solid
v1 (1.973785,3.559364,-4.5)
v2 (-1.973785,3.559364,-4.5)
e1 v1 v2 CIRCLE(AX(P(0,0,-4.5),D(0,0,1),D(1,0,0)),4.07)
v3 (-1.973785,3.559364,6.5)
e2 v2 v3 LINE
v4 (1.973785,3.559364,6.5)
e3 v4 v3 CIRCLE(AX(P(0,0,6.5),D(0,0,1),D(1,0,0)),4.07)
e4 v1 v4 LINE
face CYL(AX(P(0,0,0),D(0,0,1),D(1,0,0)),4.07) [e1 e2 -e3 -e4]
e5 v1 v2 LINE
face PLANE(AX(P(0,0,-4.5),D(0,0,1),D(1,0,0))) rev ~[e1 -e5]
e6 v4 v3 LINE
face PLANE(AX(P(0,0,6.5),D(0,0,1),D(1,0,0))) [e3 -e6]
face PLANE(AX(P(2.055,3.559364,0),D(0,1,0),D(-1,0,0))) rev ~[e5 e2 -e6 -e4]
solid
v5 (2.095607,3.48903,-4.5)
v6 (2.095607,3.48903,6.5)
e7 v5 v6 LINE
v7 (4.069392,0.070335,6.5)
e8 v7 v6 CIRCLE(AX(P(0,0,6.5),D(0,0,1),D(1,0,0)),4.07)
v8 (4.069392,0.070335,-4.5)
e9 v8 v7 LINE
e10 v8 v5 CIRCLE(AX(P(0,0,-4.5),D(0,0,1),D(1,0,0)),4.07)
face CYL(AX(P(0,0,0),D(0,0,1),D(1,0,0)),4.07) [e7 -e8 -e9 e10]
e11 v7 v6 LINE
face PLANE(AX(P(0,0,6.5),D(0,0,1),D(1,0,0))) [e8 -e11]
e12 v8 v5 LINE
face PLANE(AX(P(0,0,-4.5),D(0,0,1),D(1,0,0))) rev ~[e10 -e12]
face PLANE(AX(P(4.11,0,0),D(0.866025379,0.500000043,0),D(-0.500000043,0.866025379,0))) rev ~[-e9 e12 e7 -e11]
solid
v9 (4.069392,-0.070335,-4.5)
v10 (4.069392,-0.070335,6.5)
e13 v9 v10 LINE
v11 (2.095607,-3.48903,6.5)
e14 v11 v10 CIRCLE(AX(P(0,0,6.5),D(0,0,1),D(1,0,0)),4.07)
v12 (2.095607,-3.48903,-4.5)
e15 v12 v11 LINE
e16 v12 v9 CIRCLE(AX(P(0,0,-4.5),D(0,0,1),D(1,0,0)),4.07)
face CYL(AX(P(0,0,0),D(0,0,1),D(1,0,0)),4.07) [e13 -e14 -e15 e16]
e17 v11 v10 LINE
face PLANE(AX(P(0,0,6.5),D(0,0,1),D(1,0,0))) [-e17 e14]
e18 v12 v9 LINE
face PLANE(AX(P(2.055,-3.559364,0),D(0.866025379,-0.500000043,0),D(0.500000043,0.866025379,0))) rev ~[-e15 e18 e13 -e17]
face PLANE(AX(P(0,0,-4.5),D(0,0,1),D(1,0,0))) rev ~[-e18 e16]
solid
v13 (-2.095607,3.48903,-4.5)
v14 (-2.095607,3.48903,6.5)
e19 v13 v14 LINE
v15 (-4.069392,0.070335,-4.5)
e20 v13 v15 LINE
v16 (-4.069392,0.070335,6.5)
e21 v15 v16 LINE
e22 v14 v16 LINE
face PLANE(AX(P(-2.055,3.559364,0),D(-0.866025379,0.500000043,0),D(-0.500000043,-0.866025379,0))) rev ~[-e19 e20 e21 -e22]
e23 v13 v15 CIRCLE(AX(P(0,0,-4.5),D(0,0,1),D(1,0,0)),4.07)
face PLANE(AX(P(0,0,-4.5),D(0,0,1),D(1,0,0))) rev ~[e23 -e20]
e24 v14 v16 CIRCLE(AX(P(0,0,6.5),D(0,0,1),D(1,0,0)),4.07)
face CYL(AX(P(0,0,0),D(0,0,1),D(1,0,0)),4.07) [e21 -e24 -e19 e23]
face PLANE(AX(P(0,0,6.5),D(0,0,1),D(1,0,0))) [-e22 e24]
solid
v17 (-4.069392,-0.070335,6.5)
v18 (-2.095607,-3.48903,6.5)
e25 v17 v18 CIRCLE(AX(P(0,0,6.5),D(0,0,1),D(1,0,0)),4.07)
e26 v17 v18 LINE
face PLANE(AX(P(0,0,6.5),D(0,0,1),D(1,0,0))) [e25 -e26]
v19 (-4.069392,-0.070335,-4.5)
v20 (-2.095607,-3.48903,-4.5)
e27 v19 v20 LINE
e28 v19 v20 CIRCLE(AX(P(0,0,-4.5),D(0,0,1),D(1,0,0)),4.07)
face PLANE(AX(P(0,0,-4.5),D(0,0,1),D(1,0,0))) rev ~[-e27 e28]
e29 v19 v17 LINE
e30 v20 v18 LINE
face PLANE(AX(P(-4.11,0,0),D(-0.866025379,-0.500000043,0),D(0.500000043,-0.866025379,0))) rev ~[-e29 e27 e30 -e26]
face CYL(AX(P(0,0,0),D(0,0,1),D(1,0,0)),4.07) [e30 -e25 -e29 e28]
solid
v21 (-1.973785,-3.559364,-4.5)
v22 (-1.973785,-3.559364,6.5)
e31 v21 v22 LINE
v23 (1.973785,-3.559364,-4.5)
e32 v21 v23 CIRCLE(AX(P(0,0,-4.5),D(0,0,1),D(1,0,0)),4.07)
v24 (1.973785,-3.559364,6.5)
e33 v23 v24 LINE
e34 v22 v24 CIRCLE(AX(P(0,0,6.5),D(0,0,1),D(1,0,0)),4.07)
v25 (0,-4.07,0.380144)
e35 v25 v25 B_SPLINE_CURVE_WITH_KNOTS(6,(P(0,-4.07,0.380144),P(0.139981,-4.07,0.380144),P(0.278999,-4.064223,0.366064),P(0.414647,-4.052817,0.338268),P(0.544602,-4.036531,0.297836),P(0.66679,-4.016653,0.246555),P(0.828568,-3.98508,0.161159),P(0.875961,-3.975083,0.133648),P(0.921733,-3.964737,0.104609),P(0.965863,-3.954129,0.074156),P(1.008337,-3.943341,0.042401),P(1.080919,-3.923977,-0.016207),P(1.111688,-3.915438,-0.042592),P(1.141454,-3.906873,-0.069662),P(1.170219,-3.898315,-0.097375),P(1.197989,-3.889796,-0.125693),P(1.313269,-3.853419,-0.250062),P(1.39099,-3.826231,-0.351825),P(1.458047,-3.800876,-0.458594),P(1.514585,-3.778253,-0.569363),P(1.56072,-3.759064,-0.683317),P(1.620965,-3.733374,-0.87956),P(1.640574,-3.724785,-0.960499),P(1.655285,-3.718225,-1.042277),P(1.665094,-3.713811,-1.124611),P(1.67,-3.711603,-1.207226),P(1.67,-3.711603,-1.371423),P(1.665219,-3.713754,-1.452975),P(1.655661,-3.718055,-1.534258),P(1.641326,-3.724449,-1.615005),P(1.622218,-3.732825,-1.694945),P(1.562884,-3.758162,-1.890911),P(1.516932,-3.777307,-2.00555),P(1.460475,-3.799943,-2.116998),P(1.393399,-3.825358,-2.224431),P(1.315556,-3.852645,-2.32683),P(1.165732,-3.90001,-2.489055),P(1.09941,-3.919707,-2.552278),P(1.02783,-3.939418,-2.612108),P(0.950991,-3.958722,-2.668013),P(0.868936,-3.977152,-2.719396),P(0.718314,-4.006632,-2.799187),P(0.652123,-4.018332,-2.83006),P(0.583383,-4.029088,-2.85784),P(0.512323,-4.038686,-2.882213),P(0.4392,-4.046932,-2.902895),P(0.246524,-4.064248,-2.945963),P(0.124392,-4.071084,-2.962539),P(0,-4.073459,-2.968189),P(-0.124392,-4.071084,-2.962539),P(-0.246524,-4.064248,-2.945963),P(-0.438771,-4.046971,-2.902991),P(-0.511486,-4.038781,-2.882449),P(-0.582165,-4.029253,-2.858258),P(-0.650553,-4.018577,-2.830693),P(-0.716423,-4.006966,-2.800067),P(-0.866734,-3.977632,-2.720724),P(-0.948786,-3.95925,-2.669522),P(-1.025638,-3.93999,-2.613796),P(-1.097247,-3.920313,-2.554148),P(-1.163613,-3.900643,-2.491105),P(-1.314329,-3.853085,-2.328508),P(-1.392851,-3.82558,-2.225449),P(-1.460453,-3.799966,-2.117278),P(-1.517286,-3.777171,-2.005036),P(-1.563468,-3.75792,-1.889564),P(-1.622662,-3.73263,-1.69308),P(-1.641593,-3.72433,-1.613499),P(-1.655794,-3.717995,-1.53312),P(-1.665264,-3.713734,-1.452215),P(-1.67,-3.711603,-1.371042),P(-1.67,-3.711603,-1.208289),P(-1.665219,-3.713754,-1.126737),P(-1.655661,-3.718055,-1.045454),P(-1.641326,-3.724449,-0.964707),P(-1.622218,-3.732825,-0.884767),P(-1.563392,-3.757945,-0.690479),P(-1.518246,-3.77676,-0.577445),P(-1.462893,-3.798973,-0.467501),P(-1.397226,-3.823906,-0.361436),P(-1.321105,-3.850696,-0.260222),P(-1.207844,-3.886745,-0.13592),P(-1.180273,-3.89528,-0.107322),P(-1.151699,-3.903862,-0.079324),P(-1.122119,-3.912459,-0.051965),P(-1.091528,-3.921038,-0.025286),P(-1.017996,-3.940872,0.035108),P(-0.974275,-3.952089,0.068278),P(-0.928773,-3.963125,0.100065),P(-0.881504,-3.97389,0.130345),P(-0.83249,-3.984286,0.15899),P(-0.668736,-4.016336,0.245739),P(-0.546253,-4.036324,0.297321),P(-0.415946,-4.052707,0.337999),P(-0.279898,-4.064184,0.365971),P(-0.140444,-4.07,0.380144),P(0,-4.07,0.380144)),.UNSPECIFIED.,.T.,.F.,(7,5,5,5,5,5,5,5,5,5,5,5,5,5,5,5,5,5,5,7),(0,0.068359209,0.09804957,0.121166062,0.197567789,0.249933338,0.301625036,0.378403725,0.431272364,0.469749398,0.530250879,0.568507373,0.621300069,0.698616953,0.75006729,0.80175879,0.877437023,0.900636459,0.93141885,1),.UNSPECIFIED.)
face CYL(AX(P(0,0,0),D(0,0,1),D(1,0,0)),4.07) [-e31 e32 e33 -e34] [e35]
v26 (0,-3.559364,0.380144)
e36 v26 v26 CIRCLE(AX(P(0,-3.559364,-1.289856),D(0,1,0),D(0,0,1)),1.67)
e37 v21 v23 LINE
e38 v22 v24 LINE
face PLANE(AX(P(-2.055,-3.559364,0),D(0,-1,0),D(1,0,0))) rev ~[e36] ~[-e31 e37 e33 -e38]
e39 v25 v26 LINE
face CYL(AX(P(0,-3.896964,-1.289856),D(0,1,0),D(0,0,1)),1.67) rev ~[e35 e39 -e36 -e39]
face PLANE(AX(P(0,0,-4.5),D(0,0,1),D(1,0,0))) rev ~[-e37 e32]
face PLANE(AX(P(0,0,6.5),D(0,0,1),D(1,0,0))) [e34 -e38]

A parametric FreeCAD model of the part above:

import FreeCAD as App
import Part
import Sketcher
from FreeCAD import Vector
Q = App.Units.Quantity


def add_polygon(sketch, points):
    """Adds a closed chain of lines whose ends are joined by coincident constraints."""
    first, n = sketch.GeometryCount, len(points)
    for a, b in zip(points, points[1:] + points[:1]):
        sketch.addGeometry(Part.LineSegment(App.Vector(*a, 0), App.Vector(*b, 0)), False)
    for i in range(n):
        sketch.addConstraint(Sketcher.Constraint("Coincident", first + i, 2, first + (i + 1) % n, 1))

doc = App.newDocument("Part")
params = doc.addObject("Spreadsheet::Sheet", "Params")
for row, (alias, value) in enumerate([
    ("sketch1_diameter", "3.34 mm"),
    ("pad1_length", "2 mm"),
    ("pad1_length2", "0.2 mm"),
    ("sketch2_width", "4.11 mm"),
    ("sketch2_length", "4.11 mm"),
    ("pad2_length", "6.5 mm"),
    ("pad2_length2", "4.5 mm"),
    ("sketch3_diameter", "8.14 mm"),
    ("pad3_length", "6.5 mm"),
    ("pad3_length2", "4.5 mm"),
], start=1):
    params.set(f"A{row}", alias)
    params.set(f"B{row}", "=" + value)
    params.setAlias(f"B{row}", alias)

body = doc.addObject("PartDesign::Body", "Body")

# Sketch on XY plane
sketch1 = body.newObject("Sketcher::SketchObject", "Sketch")
sketch1.AttachmentSupport = (doc.getObject("XY_Plane"), [""])
sketch1.MapMode = "FlatFace"
sketch1.addGeometry(Part.Circle(Vector(0, 0, 0), Vector(0, 0, 1), 1.67), False)
sketch1.addConstraint([
    Sketcher.Constraint("Coincident", 0, 3, -1, 1),
    Sketcher.Constraint("Diameter", 0, 3.34),
])
sketch1.setExpression("Constraints[1]", "Params.sketch1_diameter")
pad1 = body.newObject("PartDesign::Pad", "Pad")
pad1.Profile = sketch1
pad1.Type = "TwoLengths"
pad1.setExpression("Length", "Params.pad1_length")
pad1.setExpression("Length2", "Params.pad1_length2")
body2 = doc.addObject("PartDesign::Body", "Body001")
doc.recompute()

body.Placement = App.Placement(Vector(0, 0, 0), App.Rotation(Vector(0, 1, 0), 270))
boolean = body2.newObject("PartDesign::Boolean", "Boolean")
boolean.Type = "Fuse"
boolean.addObjects([body])
body3 = doc.addObject("PartDesign::Body", "Body002")
doc.recompute()

body2.Placement = App.Placement(Vector(0, -3.896964, -1.289856), App.Rotation(Vector(0, 0, 1), 270))
boolean2 = body3.newObject("PartDesign::Boolean", "Boolean001")
boolean2.Type = "Fuse"
boolean2.addObjects([body2])
body4 = doc.addObject("PartDesign::Body", "Body003")

# Sketch on XY plane
sketch2 = body4.newObject("Sketcher::SketchObject", "Sketch001")
sketch2.AttachmentSupport = (doc.getObject("XY_Plane003"), [""])
sketch2.MapMode = "FlatFace"
add_polygon(sketch2, [(4.11, 0), (2.055, 3.559364), (-2.055, 3.559364), (-4.11, 0), (-2.055, -3.559364), (2.055, -3.559364)])  # lines 0-5
sketch2.addConstraint([
    Sketcher.Constraint("Horizontal", 1),
    Sketcher.Constraint("Horizontal", 4),
    Sketcher.Constraint("Symmetric", 0, 2, 3, 2, -1, 1),
    Sketcher.Constraint("Symmetric", 2, 2, 5, 2, -1, 1),
    Sketcher.Constraint("PointOnObject", 2, 2, -1),
    Sketcher.Constraint("Parallel", 2, 5),
    Sketcher.Constraint("Vertical", 1, 2, 3, 2),
    Sketcher.Constraint("Angle", 0, Q("120.000003 deg")),
    Sketcher.Constraint("DistanceX", 1, 2, 1, 1, 4.11),
    Sketcher.Constraint("Distance", 0, 4.11),
])
sketch2.setExpression("Constraints[14]", "Params.sketch2_width")
sketch2.setExpression("Constraints[15]", "Params.sketch2_length")
pad2 = body4.newObject("PartDesign::Pad", "Pad001")
pad2.Profile = sketch2
pad2.Type = "TwoLengths"
pad2.setExpression("Length", "Params.pad2_length")
pad2.setExpression("Length2", "Params.pad2_length2")
body5 = doc.addObject("PartDesign::Body", "Body004")
body5.AllowCompound = True

# Sketch on XY plane
sketch3 = body5.newObject("Sketcher::SketchObject", "Sketch002")
sketch3.AttachmentSupport = (doc.getObject("XY_Plane004"), [""])
sketch3.MapMode = "FlatFace"
sketch3.addGeometry(Part.Circle(Vector(0, 0, 0), Vector(0, 0, 1), 4.07), False)
sketch3.addConstraint([
    Sketcher.Constraint("Coincident", 0, 3, -1, 1),
    Sketcher.Constraint("Diameter", 0, 8.14),
])
sketch3.setExpression("Constraints[1]", "Params.sketch3_diameter")
pad3 = body5.newObject("PartDesign::Pad", "Pad002")
pad3.Profile = sketch3
pad3.Type = "TwoLengths"
pad3.setExpression("Length", "Params.pad3_length")
pad3.setExpression("Length2", "Params.pad3_length2")
doc.recompute()

boolean3 = body5.newObject("PartDesign::Boolean", "Boolean002")
boolean3.Type = "Cut"
boolean3.addObjects([body4])
doc.recompute()

boolean4 = body5.newObject("PartDesign::Boolean", "Boolean003")
boolean4.Type = "Cut"
boolean4.addObjects([body3])

doc.recompute()
